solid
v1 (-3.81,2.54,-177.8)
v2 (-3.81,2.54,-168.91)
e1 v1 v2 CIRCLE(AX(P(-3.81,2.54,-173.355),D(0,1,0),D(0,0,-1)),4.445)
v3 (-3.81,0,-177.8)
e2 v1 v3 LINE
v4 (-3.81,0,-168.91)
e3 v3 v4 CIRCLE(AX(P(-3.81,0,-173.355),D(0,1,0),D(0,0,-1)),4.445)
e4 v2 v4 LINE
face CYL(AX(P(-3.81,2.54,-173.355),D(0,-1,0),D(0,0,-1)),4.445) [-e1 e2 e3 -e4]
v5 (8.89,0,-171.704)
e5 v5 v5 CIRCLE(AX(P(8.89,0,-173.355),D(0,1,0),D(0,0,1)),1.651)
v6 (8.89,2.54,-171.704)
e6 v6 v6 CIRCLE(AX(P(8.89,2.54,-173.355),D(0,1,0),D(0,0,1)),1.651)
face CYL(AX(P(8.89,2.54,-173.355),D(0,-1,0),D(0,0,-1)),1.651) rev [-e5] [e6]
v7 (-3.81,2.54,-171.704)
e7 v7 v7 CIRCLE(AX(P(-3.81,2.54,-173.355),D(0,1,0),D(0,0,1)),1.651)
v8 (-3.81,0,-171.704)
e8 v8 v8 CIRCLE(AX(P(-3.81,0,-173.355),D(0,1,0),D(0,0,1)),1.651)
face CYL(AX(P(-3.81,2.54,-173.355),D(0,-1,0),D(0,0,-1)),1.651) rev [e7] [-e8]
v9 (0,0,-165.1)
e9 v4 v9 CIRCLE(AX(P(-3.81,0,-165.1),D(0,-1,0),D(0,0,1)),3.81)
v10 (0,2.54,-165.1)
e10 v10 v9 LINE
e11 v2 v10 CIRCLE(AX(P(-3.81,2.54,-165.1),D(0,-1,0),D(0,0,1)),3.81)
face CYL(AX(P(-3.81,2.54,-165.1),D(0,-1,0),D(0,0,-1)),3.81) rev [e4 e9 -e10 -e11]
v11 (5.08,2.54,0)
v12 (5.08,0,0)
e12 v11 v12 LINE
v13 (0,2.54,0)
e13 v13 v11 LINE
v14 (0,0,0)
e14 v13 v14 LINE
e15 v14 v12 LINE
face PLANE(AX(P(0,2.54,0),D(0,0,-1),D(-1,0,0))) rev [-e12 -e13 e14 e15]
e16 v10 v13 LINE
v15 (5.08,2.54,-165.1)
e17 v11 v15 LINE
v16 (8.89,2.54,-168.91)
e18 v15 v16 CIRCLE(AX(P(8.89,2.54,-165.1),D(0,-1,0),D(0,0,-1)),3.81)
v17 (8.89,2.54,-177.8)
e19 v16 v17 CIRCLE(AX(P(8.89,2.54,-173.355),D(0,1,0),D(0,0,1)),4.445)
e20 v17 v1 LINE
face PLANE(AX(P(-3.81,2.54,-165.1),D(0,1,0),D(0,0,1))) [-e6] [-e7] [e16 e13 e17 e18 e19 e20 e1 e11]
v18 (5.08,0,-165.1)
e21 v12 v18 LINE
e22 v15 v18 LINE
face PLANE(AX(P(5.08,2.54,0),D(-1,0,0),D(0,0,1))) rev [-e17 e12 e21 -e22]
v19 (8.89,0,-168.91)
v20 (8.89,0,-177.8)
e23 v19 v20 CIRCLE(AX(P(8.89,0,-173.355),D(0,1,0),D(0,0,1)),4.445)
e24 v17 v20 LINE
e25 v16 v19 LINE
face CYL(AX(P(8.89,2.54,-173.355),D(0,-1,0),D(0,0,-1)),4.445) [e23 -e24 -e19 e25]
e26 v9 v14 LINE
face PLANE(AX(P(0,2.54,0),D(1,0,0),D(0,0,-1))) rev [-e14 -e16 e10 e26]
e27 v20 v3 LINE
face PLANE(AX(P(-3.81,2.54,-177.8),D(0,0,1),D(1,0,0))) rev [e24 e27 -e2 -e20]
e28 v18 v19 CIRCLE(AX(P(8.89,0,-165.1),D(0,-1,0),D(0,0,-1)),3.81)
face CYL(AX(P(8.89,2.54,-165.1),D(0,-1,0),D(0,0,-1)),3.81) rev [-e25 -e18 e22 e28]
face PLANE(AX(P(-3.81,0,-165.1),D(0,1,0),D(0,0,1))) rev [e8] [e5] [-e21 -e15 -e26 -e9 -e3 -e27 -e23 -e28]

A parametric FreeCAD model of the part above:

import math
import FreeCAD as App
import Part
import Sketcher

V = App.Vector
Q = App.Units.Quantity

doc = App.newDocument("Part")
params = doc.addObject("Spreadsheet::Sheet", "Params")
for row, (alias, value) in enumerate([
    ("sketch1_diameter", "0.13 in"),
    ("sketch1_radius", "0.15 in"),
    ("sketch1_width", "0.2 in"),
    ("sketch1_height", "6.5 in"),
    ("pad1_length", "0.1 in"),
], start=1):
    params.set(f"A{row}", alias)
    params.set(f"B{row}", "=" + value)
    params.setAlias(f"B{row}", alias)

body = doc.addObject("PartDesign::Body", "Body")

sketch1 = body.newObject("Sketcher::SketchObject", "Sketch")
sketch1.AttachmentSupport = (doc.getObject("XZ_Plane"), [""])
sketch1.MapMode = "FlatFace"
sketch1.addGeometry(Part.LineSegment(V(0, 0, 0), V(5.08, 0, 0)), False)
sketch1.addGeometry(Part.LineSegment(V(5.08, 0, 0), V(5.08, -165.1, 0)), False)
sketch1.addGeometry(Part.ArcOfCircle(Part.Circle(V(8.89, -165.1, 0), V(0, 0, 1), 3.81), math.radians(-180), math.radians(-90)), False)
sketch1.addGeometry(Part.ArcOfCircle(Part.Circle(V(8.89, -173.355, 0), V(0, 0, 1), 4.445), math.radians(-90), math.radians(90)), False)
sketch1.addGeometry(Part.LineSegment(V(8.89, -177.8, 0), V(-3.81, -177.8, 0)), False)
sketch1.addGeometry(Part.ArcOfCircle(Part.Circle(V(-3.81, -173.355, 0), V(0, 0, 1), 4.445), math.radians(90), math.radians(270)), False)
sketch1.addGeometry(Part.ArcOfCircle(Part.Circle(V(-3.81, -165.1, 0), V(0, 0, 1), 3.81), math.radians(-90), math.radians(0)), False)
sketch1.addGeometry(Part.LineSegment(V(0, -165.1, 0), V(0, 0, 0)), False)
sketch1.addGeometry(Part.Circle(V(-3.81, -173.355, 0), V(0, 0, 1), 1.651), False)
sketch1.addGeometry(Part.Circle(V(8.89, -173.355, 0), V(0, 0, 1), 1.651), False)
sketch1.addConstraint(Sketcher.Constraint("Coincident", 0, 2, 1, 1))
sketch1.addConstraint(Sketcher.Constraint("Tangent", 1, 2, 2, 1))
sketch1.addConstraint(Sketcher.Constraint("Tangent", 2, 2, 3, 2))
sketch1.addConstraint(Sketcher.Constraint("Tangent", 3, 1, 4, 1))
sketch1.addConstraint(Sketcher.Constraint("Tangent", 4, 2, 5, 2))
sketch1.addConstraint(Sketcher.Constraint("Tangent", 5, 1, 6, 1))
sketch1.addConstraint(Sketcher.Constraint("Tangent", 6, 2, 7, 1))
sketch1.addConstraint(Sketcher.Constraint("Coincident", 7, 2, 0, 1))
sketch1.addConstraint(Sketcher.Constraint("Horizontal", 0))
sketch1.addConstraint(Sketcher.Constraint("Vertical", 1))
sketch1.addConstraint(Sketcher.Constraint("Horizontal", 4))
sketch1.addConstraint(Sketcher.Constraint("Vertical", 7))
sketch1.addConstraint(Sketcher.Constraint("Coincident", 7, 2, -1, 1))
sketch1.addConstraint(Sketcher.Constraint("Coincident", 8, 3, 5, 3))
sketch1.addConstraint(Sketcher.Constraint("Coincident", 9, 3, 3, 3))
sketch1.addConstraint(Sketcher.Constraint("Equal", 3, 5))
sketch1.addConstraint(Sketcher.Constraint("Equal", 2, 6))
sketch1.addConstraint(Sketcher.Constraint("Equal", 8, 9))
sketch1.addConstraint(Sketcher.Constraint("Vertical", 2, 3, 3, 3))
sketch1.addConstraint(Sketcher.Constraint("Vertical", 5, 3, 6, 3))
sketch1.addConstraint(Sketcher.Constraint("Diameter", 8, Q("0.13 in")))
sketch1.addConstraint(Sketcher.Constraint("Radius", 2, Q("0.15 in")))
sketch1.addConstraint(Sketcher.Constraint("DistanceX", 0, 1, 0, 2, Q("0.2 in")))
sketch1.addConstraint(Sketcher.Constraint("DistanceY", 1, 2, 1, 1, Q("6.5 in")))
sketch1.addConstraint(Sketcher.Constraint("DistanceY", 3, 1, -1, 1, Q("7 in")))
sketch1.setExpression("Constraints[20]", "Params.sketch1_diameter")
sketch1.setExpression("Constraints[21]", "Params.sketch1_radius")
sketch1.setExpression("Constraints[22]", "Params.sketch1_width")
sketch1.setExpression("Constraints[23]", "Params.sketch1_height")
pad1 = body.newObject("PartDesign::Pad", "Pad")
pad1.Profile = sketch1
pad1.setExpression("Length", "Params.pad1_length")
pad1.Reversed = True

doc.recompute()
